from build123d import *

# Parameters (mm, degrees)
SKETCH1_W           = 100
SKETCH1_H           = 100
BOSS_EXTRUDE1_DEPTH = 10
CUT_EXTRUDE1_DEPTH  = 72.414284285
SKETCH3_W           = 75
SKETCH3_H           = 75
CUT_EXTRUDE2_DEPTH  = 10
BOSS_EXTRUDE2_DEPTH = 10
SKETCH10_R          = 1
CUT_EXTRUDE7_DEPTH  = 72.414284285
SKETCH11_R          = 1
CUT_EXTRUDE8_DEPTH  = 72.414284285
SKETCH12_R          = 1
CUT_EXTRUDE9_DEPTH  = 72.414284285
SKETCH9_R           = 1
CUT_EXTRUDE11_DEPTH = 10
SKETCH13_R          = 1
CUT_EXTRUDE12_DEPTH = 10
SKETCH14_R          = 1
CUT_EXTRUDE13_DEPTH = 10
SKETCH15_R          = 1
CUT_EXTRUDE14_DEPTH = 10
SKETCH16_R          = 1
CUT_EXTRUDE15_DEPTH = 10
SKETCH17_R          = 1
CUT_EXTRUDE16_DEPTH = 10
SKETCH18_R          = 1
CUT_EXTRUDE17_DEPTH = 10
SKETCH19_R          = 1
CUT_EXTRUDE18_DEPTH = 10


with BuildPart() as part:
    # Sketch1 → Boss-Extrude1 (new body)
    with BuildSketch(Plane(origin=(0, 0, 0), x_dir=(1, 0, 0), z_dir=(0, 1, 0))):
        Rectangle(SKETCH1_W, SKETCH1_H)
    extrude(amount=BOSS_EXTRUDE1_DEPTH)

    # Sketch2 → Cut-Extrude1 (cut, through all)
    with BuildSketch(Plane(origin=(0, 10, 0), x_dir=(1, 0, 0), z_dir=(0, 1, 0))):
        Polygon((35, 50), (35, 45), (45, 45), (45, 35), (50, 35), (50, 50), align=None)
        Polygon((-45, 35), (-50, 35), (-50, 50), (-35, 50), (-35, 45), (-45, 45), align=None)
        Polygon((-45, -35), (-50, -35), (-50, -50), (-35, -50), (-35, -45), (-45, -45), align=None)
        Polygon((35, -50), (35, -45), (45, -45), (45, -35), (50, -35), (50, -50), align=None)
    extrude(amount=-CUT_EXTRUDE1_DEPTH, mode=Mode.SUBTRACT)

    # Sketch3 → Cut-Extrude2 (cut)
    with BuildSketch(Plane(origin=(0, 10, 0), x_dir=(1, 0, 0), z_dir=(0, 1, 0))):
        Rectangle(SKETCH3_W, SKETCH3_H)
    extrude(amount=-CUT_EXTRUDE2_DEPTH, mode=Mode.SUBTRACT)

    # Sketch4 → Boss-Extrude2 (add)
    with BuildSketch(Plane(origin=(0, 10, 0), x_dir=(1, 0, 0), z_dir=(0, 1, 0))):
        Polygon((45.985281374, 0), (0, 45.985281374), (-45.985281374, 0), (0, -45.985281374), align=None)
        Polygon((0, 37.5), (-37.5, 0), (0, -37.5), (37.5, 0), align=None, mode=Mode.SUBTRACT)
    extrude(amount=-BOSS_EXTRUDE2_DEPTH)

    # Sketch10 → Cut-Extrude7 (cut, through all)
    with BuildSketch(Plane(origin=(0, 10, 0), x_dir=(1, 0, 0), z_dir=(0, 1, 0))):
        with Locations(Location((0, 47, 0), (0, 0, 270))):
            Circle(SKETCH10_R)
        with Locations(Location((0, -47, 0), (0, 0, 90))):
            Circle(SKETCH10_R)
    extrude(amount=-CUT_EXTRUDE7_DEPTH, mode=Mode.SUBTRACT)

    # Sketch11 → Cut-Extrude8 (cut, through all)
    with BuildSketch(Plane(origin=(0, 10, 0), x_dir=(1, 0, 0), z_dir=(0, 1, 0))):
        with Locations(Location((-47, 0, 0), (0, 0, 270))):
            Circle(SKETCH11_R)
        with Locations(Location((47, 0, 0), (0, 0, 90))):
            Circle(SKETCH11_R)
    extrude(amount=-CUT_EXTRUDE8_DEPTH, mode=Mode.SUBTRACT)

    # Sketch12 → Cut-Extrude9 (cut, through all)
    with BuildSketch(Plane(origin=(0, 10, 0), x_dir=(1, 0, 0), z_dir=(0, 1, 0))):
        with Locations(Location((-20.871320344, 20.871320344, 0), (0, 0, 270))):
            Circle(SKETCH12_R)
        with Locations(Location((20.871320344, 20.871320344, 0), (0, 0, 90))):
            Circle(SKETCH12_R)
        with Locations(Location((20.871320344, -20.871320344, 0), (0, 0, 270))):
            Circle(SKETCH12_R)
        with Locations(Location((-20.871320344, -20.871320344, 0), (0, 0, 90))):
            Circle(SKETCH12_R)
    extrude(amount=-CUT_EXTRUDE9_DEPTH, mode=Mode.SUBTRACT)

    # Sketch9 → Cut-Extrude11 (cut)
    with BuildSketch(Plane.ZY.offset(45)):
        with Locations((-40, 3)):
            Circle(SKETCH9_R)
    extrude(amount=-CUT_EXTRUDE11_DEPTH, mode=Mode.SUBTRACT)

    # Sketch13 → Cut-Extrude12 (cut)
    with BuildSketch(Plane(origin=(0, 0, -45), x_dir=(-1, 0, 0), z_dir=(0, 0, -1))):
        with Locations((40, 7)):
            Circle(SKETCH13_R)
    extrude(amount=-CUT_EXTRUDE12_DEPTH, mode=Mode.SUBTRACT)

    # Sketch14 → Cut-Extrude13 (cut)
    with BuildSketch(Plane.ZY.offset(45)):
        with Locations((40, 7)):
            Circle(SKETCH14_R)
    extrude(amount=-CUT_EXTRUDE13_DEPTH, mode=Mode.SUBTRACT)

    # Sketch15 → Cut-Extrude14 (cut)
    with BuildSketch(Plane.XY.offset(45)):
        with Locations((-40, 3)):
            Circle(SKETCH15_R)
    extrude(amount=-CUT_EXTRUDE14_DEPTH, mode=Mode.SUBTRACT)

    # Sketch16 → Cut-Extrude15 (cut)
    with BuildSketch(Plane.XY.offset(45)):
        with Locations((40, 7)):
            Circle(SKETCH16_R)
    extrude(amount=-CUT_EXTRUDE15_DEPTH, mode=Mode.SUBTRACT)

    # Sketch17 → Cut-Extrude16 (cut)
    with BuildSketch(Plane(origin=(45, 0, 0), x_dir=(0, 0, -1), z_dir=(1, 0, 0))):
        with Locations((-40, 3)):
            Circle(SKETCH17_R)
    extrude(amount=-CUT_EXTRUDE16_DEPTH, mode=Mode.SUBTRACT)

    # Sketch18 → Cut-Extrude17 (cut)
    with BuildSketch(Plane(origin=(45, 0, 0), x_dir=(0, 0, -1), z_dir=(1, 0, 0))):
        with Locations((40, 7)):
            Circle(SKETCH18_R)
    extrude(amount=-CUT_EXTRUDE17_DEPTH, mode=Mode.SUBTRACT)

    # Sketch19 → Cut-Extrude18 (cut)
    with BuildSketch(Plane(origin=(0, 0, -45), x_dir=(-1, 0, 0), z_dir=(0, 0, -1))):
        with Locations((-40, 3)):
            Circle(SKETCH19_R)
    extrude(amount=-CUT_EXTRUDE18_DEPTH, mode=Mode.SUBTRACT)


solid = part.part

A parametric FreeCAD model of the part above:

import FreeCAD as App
import Part
import Sketcher

doc = App.newDocument("Part")
params = doc.addObject("Spreadsheet::Sheet", "Params")
for row, (alias, value) in enumerate([
    ("sketch1_width", "100 mm"),
    ("pad1_length", "10 mm"),
    ("sketch2_width", "10 mm"),
    ("sketch2_width2", "5 mm"),
    ("sketch3_width", "75 mm"),
    ("pocket2_length", "10 mm"),
    ("pad2_length", "10 mm"),
    ("sketch5_diameter", "2 mm"),
    ("sketch6_diameter", "2 mm"),
    ("sketch7_diameter", "2 mm"),
    ("sketch8_diameter", "2 mm"),
    ("pocket6_length", "10 mm"),
    ("sketch9_diameter", "2 mm"),
    ("pocket7_length", "10 mm"),
    ("sketch10_diameter", "2 mm"),
    ("pocket8_length", "10 mm"),
    ("sketch11_diameter", "2 mm"),
    ("pocket9_length", "10 mm"),
    ("sketch12_diameter", "2 mm"),
    ("pocket10_length", "10 mm"),
    ("sketch13_diameter", "2 mm"),
    ("pocket11_length", "10 mm"),
    ("sketch14_diameter", "2 mm"),
    ("pocket12_length", "10 mm"),
    ("sketch15_diameter", "2 mm"),
    ("pocket13_length", "10 mm"),
], start=1):
    params.set(f"A{row}", alias)
    params.set(f"B{row}", "=" + value)
    params.setAlias(f"B{row}", alias)

body = doc.addObject("PartDesign::Body", "Body")

sketch1 = body.newObject("Sketcher::SketchObject", "Sketch")
sketch1.AttachmentSupport = (doc.getObject("XZ_Plane"), [""])
sketch1.MapMode = "FlatFace"
sketch1.addGeometry([
    Part.LineSegment(App.Vector(-50, -50, 0), App.Vector(-50, 50, 0)),
    Part.LineSegment(App.Vector(-50, 50, 0), App.Vector(50, 50, 0)),
    Part.LineSegment(App.Vector(50, 50, 0), App.Vector(50, -50, 0)),
    Part.LineSegment(App.Vector(50, -50, 0), App.Vector(-50, -50, 0)),
], False)
sketch1.addConstraint([
    Sketcher.Constraint("Coincident", 0, 2, 1, 1),
    Sketcher.Constraint("Coincident", 1, 2, 2, 1),
    Sketcher.Constraint("Coincident", 2, 2, 3, 1),
    Sketcher.Constraint("Coincident", 3, 2, 0, 1),
    Sketcher.Constraint("Vertical", 0),
    Sketcher.Constraint("Horizontal", 1),
    Sketcher.Constraint("Vertical", 2),
    Sketcher.Constraint("Horizontal", 3),
    Sketcher.Constraint("Symmetric", 0, 2, 2, 2, -1, 1),
    Sketcher.Constraint("Equal", 3, 0),
    Sketcher.Constraint("DistanceX", 1, 1, 1, 2, 100.0),
])
sketch1.setExpression("Constraints[10]", "Params.sketch1_width")
pad1 = body.newObject("PartDesign::Pad", "Pad")
pad1.Profile = sketch1
pad1.setExpression("Length", "Params.pad1_length")
pad1.Reversed = True

sketch2 = body.newObject("Sketcher::SketchObject", "Sketch001")
sketch2.AttachmentSupport = (doc.getObject("XZ_Plane"), [""])
sketch2.MapMode = "FlatFace"
sketch2.AttachmentOffset = App.Placement(App.Vector(0, 0, -10), App.Rotation())
sketch2.addGeometry([
    Part.LineSegment(App.Vector(35, -50, 0), App.Vector(35, -45, 0)),
    Part.LineSegment(App.Vector(35, -45, 0), App.Vector(45, -45, 0)),
    Part.LineSegment(App.Vector(45, -45, 0), App.Vector(45, -35, 0)),
    Part.LineSegment(App.Vector(45, -35, 0), App.Vector(50, -35, 0)),
    Part.LineSegment(App.Vector(50, -35, 0), App.Vector(50, -50, 0)),
    Part.LineSegment(App.Vector(50, -50, 0), App.Vector(35, -50, 0)),
    Part.LineSegment(App.Vector(-50, -35, 0), App.Vector(-45, -35, 0)),
    Part.LineSegment(App.Vector(-45, -35, 0), App.Vector(-45, -45, 0)),
    Part.LineSegment(App.Vector(-45, -45, 0), App.Vector(-35, -45, 0)),
    Part.LineSegment(App.Vector(-35, -45, 0), App.Vector(-35, -50, 0)),
    Part.LineSegment(App.Vector(-35, -50, 0), App.Vector(-50, -50, 0)),
    Part.LineSegment(App.Vector(-50, -50, 0), App.Vector(-50, -35, 0)),
    Part.LineSegment(App.Vector(-45, 35, 0), App.Vector(-50, 35, 0)),
    Part.LineSegment(App.Vector(-50, 35, 0), App.Vector(-50, 50, 0)),
    Part.LineSegment(App.Vector(-50, 50, 0), App.Vector(-35, 50, 0)),
    Part.LineSegment(App.Vector(-35, 50, 0), App.Vector(-35, 45, 0)),
    Part.LineSegment(App.Vector(-35, 45, 0), App.Vector(-45, 45, 0)),
    Part.LineSegment(App.Vector(-45, 45, 0), App.Vector(-45, 35, 0)),
    Part.LineSegment(App.Vector(35, 45, 0), App.Vector(35, 50, 0)),
    Part.LineSegment(App.Vector(35, 50, 0), App.Vector(50, 50, 0)),
    Part.LineSegment(App.Vector(50, 50, 0), App.Vector(50, 35, 0)),
    Part.LineSegment(App.Vector(50, 35, 0), App.Vector(45, 35, 0)),
    Part.LineSegment(App.Vector(45, 35, 0), App.Vector(45, 45, 0)),
    Part.LineSegment(App.Vector(45, 45, 0), App.Vector(35, 45, 0)),
], False)
sketch2.addConstraint([
    Sketcher.Constraint("Coincident", 0, 2, 1, 1),
    Sketcher.Constraint("Coincident", 1, 2, 2, 1),
    Sketcher.Constraint("Coincident", 2, 2, 3, 1),
    Sketcher.Constraint("Coincident", 3, 2, 4, 1),
    Sketcher.Constraint("Coincident", 4, 2, 5, 1),
    Sketcher.Constraint("Coincident", 5, 2, 0, 1),
    Sketcher.Constraint("Coincident", 6, 2, 7, 1),
    Sketcher.Constraint("Coincident", 7, 2, 8, 1),
    Sketcher.Constraint("Coincident", 8, 2, 9, 1),
    Sketcher.Constraint("Coincident", 9, 2, 10, 1),
    Sketcher.Constraint("Coincident", 10, 2, 11, 1),
    Sketcher.Constraint("Coincident", 11, 2, 6, 1),
    Sketcher.Constraint("Coincident", 12, 2, 13, 1),
    Sketcher.Constraint("Coincident", 13, 2, 14, 1),
    Sketcher.Constraint("Coincident", 14, 2, 15, 1),
    Sketcher.Constraint("Coincident", 15, 2, 16, 1),
    Sketcher.Constraint("Coincident", 16, 2, 17, 1),
    Sketcher.Constraint("Coincident", 17, 2, 12, 1),
    Sketcher.Constraint("Coincident", 18, 2, 19, 1),
    Sketcher.Constraint("Coincident", 19, 2, 20, 1),
    Sketcher.Constraint("Coincident", 20, 2, 21, 1),
    Sketcher.Constraint("Coincident", 21, 2, 22, 1),
    Sketcher.Constraint("Coincident", 22, 2, 23, 1),
    Sketcher.Constraint("Coincident", 23, 2, 18, 1),
    Sketcher.Constraint("Vertical", 0),
    Sketcher.Constraint("Horizontal", 1),
    Sketcher.Constraint("Vertical", 2),
    Sketcher.Constraint("Horizontal", 3),
    Sketcher.Constraint("Vertical", 4),
    Sketcher.Constraint("Horizontal", 5),
    Sketcher.Constraint("Horizontal", 6),
    Sketcher.Constraint("Vertical", 7),
    Sketcher.Constraint("Horizontal", 8),
    Sketcher.Constraint("Vertical", 9),
    Sketcher.Constraint("Horizontal", 10),
    Sketcher.Constraint("Vertical", 11),
    Sketcher.Constraint("Horizontal", 12),
    Sketcher.Constraint("Vertical", 13),
    Sketcher.Constraint("Horizontal", 14),
    Sketcher.Constraint("Vertical", 15),
    Sketcher.Constraint("Horizontal", 16),
    Sketcher.Constraint("Vertical", 17),
    Sketcher.Constraint("Vertical", 18),
    Sketcher.Constraint("Horizontal", 19),
    Sketcher.Constraint("Vertical", 20),
    Sketcher.Constraint("Horizontal", 21),
    Sketcher.Constraint("Vertical", 22),
    Sketcher.Constraint("Horizontal", 23),
    Sketcher.Constraint("Symmetric", 3, 2, 12, 2, -1, 1),
    Sketcher.Constraint("Symmetric", 5, 2, 14, 2, -1, 1),
    Sketcher.Constraint("Symmetric", 1, 2, 16, 2, -1, 1),
    Sketcher.Constraint("Symmetric", 9, 2, 18, 2, -1, 1),
    Sketcher.Constraint("Symmetric", 11, 2, 20, 2, -1, 1),
    Sketcher.Constraint("Symmetric", 7, 2, 22, 2, -1, 1),
    Sketcher.Constraint("Symmetric", 2, 2, 6, 2, -2),
    Sketcher.Constraint("Symmetric", 0, 2, 8, 2, -2),
    Sketcher.Constraint("Symmetric", 4, 2, 10, 2, -2),
    Sketcher.Constraint("Equal", 21, 0),
    Sketcher.Constraint("Equal", 23, 2),
    Sketcher.Constraint("DistanceX", 1, 1, 1, 2, 10.0),
    Sketcher.Constraint("DistanceX", 3, 1, 3, 2, 5.0),
    Sketcher.Constraint("DistanceX", -1, 1, 0, 2, 35.0),
    Sketcher.Constraint("DistanceY", 0, 2, -1, 1, 45.0),
])
sketch2.setExpression("Constraints[59]", "Params.sketch2_width")
sketch2.setExpression("Constraints[60]", "Params.sketch2_width2")
pocket1 = body.newObject("PartDesign::Pocket", "Pocket")
pocket1.Profile = sketch2
pocket1.Type = "ThroughAll"
pocket1.Reversed = True

sketch3 = body.newObject("Sketcher::SketchObject", "Sketch002")
sketch3.AttachmentSupport = (doc.getObject("XZ_Plane"), [""])
sketch3.MapMode = "FlatFace"
sketch3.AttachmentOffset = App.Placement(App.Vector(0, 0, -10), App.Rotation())
sketch3.addGeometry([
    Part.LineSegment(App.Vector(-38, -38, 0), App.Vector(-38, 38, 0)),
    Part.LineSegment(App.Vector(-38, 38, 0), App.Vector(38, 38, 0)),
    Part.LineSegment(App.Vector(38, 38, 0), App.Vector(38, -38, 0)),
    Part.LineSegment(App.Vector(38, -38, 0), App.Vector(-38, -38, 0)),
], False)
sketch3.addConstraint([
    Sketcher.Constraint("Coincident", 0, 2, 1, 1),
    Sketcher.Constraint("Coincident", 1, 2, 2, 1),
    Sketcher.Constraint("Coincident", 2, 2, 3, 1),
    Sketcher.Constraint("Coincident", 3, 2, 0, 1),
    Sketcher.Constraint("Vertical", 0),
    Sketcher.Constraint("Horizontal", 1),
    Sketcher.Constraint("Vertical", 2),
    Sketcher.Constraint("Horizontal", 3),
    Sketcher.Constraint("Symmetric", 0, 2, 2, 2, -1, 1),
    Sketcher.Constraint("Equal", 3, 0),
    Sketcher.Constraint("DistanceX", 1, 1, 1, 2, 75.0),
])
sketch3.setExpression("Constraints[10]", "Params.sketch3_width")
pocket2 = body.newObject("PartDesign::Pocket", "Pocket001")
pocket2.Profile = sketch3
pocket2.setExpression("Length", "Params.pocket2_length")
pocket2.Reversed = True

sketch4 = body.newObject("Sketcher::SketchObject", "Sketch003")
sketch4.AttachmentSupport = (doc.getObject("XZ_Plane"), [""])
sketch4.MapMode = "FlatFace"
sketch4.AttachmentOffset = App.Placement(App.Vector(0, 0, -10), App.Rotation())
sketch4.addGeometry([
    Part.LineSegment(App.Vector(46, 0, 0), App.Vector(0, -46, 0)),
    Part.LineSegment(App.Vector(0, -46, 0), App.Vector(-46, 0, 0)),
    Part.LineSegment(App.Vector(-46, 0, 0), App.Vector(0, 46, 0)),
    Part.LineSegment(App.Vector(0, 46, 0), App.Vector(46, 0, 0)),
    Part.LineSegment(App.Vector(-38, 0, 0), App.Vector(0, -38, 0)),
    Part.LineSegment(App.Vector(0, -38, 0), App.Vector(38, 0, 0)),
    Part.LineSegment(App.Vector(38, 0, 0), App.Vector(0, 38, 0)),
    Part.LineSegment(App.Vector(0, 38, 0), App.Vector(-38, 0, 0)),
], False)
sketch4.addConstraint([
    Sketcher.Constraint("Coincident", 0, 2, 1, 1),
    Sketcher.Constraint("Coincident", 1, 2, 2, 1),
    Sketcher.Constraint("Coincident", 2, 2, 3, 1),
    Sketcher.Constraint("Coincident", 3, 2, 0, 1),
    Sketcher.Constraint("Coincident", 4, 2, 5, 1),
    Sketcher.Constraint("Coincident", 5, 2, 6, 1),
    Sketcher.Constraint("Coincident", 6, 2, 7, 1),
    Sketcher.Constraint("Coincident", 7, 2, 4, 1),
    Sketcher.Constraint("Symmetric", 0, 2, 2, 2, -1, 1),
    Sketcher.Constraint("Symmetric", 1, 2, 3, 2, -1, 1),
    Sketcher.Constraint("Symmetric", 4, 2, 6, 2, -1, 1),
    Sketcher.Constraint("Symmetric", 5, 2, 7, 2, -1, 1),
    Sketcher.Constraint("PointOnObject", 0, 2, -2),
    Sketcher.Constraint("PointOnObject", 1, 2, -1),
    Sketcher.Constraint("PointOnObject", 4, 2, -2),
    Sketcher.Constraint("PointOnObject", 5, 2, -1),
    Sketcher.Constraint("Perpendicular", 0, 1),
    Sketcher.Constraint("Parallel", 3, 4),
    Sketcher.Constraint("DistanceY", 4, 2, 6, 2, 75.0),
    Sketcher.Constraint("Distance", 0, 65.033009),
])
pad2 = body.newObject("PartDesign::Pad", "Pad001")
pad2.Profile = sketch4
pad2.setExpression("Length", "Params.pad2_length")

sketch5 = body.newObject("Sketcher::SketchObject", "Sketch004")
sketch5.AttachmentSupport = (doc.getObject("XZ_Plane"), [""])
sketch5.MapMode = "FlatFace"
sketch5.AttachmentOffset = App.Placement(App.Vector(0, 0, -10), App.Rotation())
sketch5.addGeometry([
    Part.Circle(App.Vector(0, -47, 0), App.Vector(0, 0, 1), 1),
    Part.Circle(App.Vector(0, 47, 0), App.Vector(0, 0, 1), 1),
], False)
sketch5.addConstraint([
    Sketcher.Constraint("Equal", 0, 1),
    Sketcher.Constraint("Symmetric", 0, 3, 1, 3, -1, 1),
    Sketcher.Constraint("PointOnObject", 0, 3, -2),
    Sketcher.Constraint("Diameter", 0, 2.0),
    Sketcher.Constraint("DistanceY", 0, 3, -1, 1, 47.0),
])
sketch5.setExpression("Constraints[3]", "Params.sketch5_diameter")
pocket3 = body.newObject("PartDesign::Pocket", "Pocket002")
pocket3.Profile = sketch5
pocket3.Type = "ThroughAll"
pocket3.Reversed = True

sketch6 = body.newObject("Sketcher::SketchObject", "Sketch005")
sketch6.AttachmentSupport = (doc.getObject("XZ_Plane"), [""])
sketch6.MapMode = "FlatFace"
sketch6.AttachmentOffset = App.Placement(App.Vector(0, 0, -10), App.Rotation())
sketch6.addGeometry([
    Part.Circle(App.Vector(-47, 0, 0), App.Vector(0, 0, 1), 1),
    Part.Circle(App.Vector(47, 0, 0), App.Vector(0, 0, 1), 1),
], False)
sketch6.addConstraint([
    Sketcher.Constraint("Equal", 0, 1),
    Sketcher.Constraint("Symmetric", 0, 3, 1, 3, -1, 1),
    Sketcher.Constraint("PointOnObject", 0, 3, -1),
    Sketcher.Constraint("Diameter", 0, 2.0),
    Sketcher.Constraint("DistanceX", 0, 3, -1, 1, 47.0),
])
sketch6.setExpression("Constraints[3]", "Params.sketch6_diameter")
pocket4 = body.newObject("PartDesign::Pocket", "Pocket003")
pocket4.Profile = sketch6
pocket4.Type = "ThroughAll"
pocket4.Reversed = True

sketch7 = body.newObject("Sketcher::SketchObject", "Sketch006")
sketch7.AttachmentSupport = (doc.getObject("XZ_Plane"), [""])
sketch7.MapMode = "FlatFace"
sketch7.AttachmentOffset = App.Placement(App.Vector(0, 0, -10), App.Rotation())
sketch7.addGeometry([
    Part.Circle(App.Vector(-20.9, -20.9, 0), App.Vector(0, 0, 1), 1),
    Part.Circle(App.Vector(20.9, -20.9, 0), App.Vector(0, 0, 1), 1),
    Part.Circle(App.Vector(20.9, 20.9, 0), App.Vector(0, 0, 1), 1),
    Part.Circle(App.Vector(-20.9, 20.9, 0), App.Vector(0, 0, 1), 1),
], False)
sketch7.addConstraint([
    Sketcher.Constraint("Equal", 0, 1),
    Sketcher.Constraint("Equal", 1, 2),
    Sketcher.Constraint("Equal", 2, 3),
    Sketcher.Constraint("Symmetric", 0, 3, 2, 3, -1, 1),
    Sketcher.Constraint("Symmetric", 1, 3, 3, 3, -1, 1),
    Sketcher.Constraint("Symmetric", 0, 3, 1, 3, -2),
    Sketcher.Constraint("Diameter", 0, 2.0),
    Sketcher.Constraint("DistanceX", 0, 3, -1, 1, 20.87132),
    Sketcher.Constraint("DistanceY", 0, 3, -1, 1, 20.87132),
])
sketch7.setExpression("Constraints[6]", "Params.sketch7_diameter")
pocket5 = body.newObject("PartDesign::Pocket", "Pocket004")
pocket5.Profile = sketch7
pocket5.Type = "ThroughAll"
pocket5.Reversed = True

sketch8 = body.newObject("Sketcher::SketchObject", "Sketch007")
sketch8.AttachmentSupport = (doc.getObject("YZ_Plane"), [""])
sketch8.MapMode = "FlatFace"
sketch8.AttachmentOffset = App.Placement(App.Vector(0, 0, -45), App.Rotation())
sketch8.addGeometry(Part.Circle(App.Vector(3, -40, 0), App.Vector(0, 0, 1), 1), False)
sketch8.addConstraint([
    Sketcher.Constraint("Diameter", 0, 2.0),
    Sketcher.Constraint("DistanceX", -1, 1, 0, 3, 3.0),
    Sketcher.Constraint("DistanceY", 0, 3, -1, 1, 40.0),
])
sketch8.setExpression("Constraints[0]", "Params.sketch8_diameter")
pocket6 = body.newObject("PartDesign::Pocket", "Pocket005")
pocket6.Profile = sketch8
pocket6.setExpression("Length", "Params.pocket6_length")
pocket6.Reversed = True

sketch9 = body.newObject("Sketcher::SketchObject", "Sketch008")
sketch9.AttachmentSupport = (doc.getObject("XY_Plane"), [""])
sketch9.MapMode = "FlatFace"
sketch9.AttachmentOffset = App.Placement(App.Vector(0, 0, -45), App.Rotation())
sketch9.addGeometry(Part.Circle(App.Vector(-40, 7, 0), App.Vector(0, 0, 1), 1), False)
sketch9.addConstraint([
    Sketcher.Constraint("Diameter", 0, 2.0),
    Sketcher.Constraint("DistanceX", 0, 3, -1, 1, 40.0),
    Sketcher.Constraint("DistanceY", -1, 1, 0, 3, 7.0),
])
sketch9.setExpression("Constraints[0]", "Params.sketch9_diameter")
pocket7 = body.newObject("PartDesign::Pocket", "Pocket006")
pocket7.Profile = sketch9
pocket7.setExpression("Length", "Params.pocket7_length")
pocket7.Reversed = True

sketch10 = body.newObject("Sketcher::SketchObject", "Sketch009")
sketch10.AttachmentSupport = (doc.getObject("YZ_Plane"), [""])
sketch10.MapMode = "FlatFace"
sketch10.AttachmentOffset = App.Placement(App.Vector(0, 0, -45), App.Rotation())
sketch10.addGeometry(Part.Circle(App.Vector(7, 40, 0), App.Vector(0, 0, 1), 1), False)
sketch10.addConstraint([
    Sketcher.Constraint("Diameter", 0, 2.0),
    Sketcher.Constraint("DistanceX", -1, 1, 0, 3, 7.0),
    Sketcher.Constraint("DistanceY", -1, 1, 0, 3, 40.0),
])
sketch10.setExpression("Constraints[0]", "Params.sketch10_diameter")
pocket8 = body.newObject("PartDesign::Pocket", "Pocket007")
pocket8.Profile = sketch10
pocket8.setExpression("Length", "Params.pocket8_length")
pocket8.Reversed = True

sketch11 = body.newObject("Sketcher::SketchObject", "Sketch010")
sketch11.AttachmentSupport = (doc.getObject("XY_Plane"), [""])
sketch11.MapMode = "FlatFace"
sketch11.AttachmentOffset = App.Placement(App.Vector(0, 0, 45), App.Rotation())
sketch11.addGeometry(Part.Circle(App.Vector(-40, 3, 0), App.Vector(0, 0, 1), 1), False)
sketch11.addConstraint([
    Sketcher.Constraint("Diameter", 0, 2.0),
    Sketcher.Constraint("DistanceX", 0, 3, -1, 1, 40.0),
    Sketcher.Constraint("DistanceY", -1, 1, 0, 3, 3.0),
])
sketch11.setExpression("Constraints[0]", "Params.sketch11_diameter")
pocket9 = body.newObject("PartDesign::Pocket", "Pocket008")
pocket9.Profile = sketch11
pocket9.setExpression("Length", "Params.pocket9_length")

sketch12 = body.newObject("Sketcher::SketchObject", "Sketch011")
sketch12.AttachmentSupport = (doc.getObject("XY_Plane"), [""])
sketch12.MapMode = "FlatFace"
sketch12.AttachmentOffset = App.Placement(App.Vector(0, 0, 45), App.Rotation())
sketch12.addGeometry(Part.Circle(App.Vector(40, 7, 0), App.Vector(0, 0, 1), 1), False)
sketch12.addConstraint([
    Sketcher.Constraint("Diameter", 0, 2.0),
    Sketcher.Constraint("DistanceX", -1, 1, 0, 3, 40.0),
    Sketcher.Constraint("DistanceY", -1, 1, 0, 3, 7.0),
])
sketch12.setExpression("Constraints[0]", "Params.sketch12_diameter")
pocket10 = body.newObject("PartDesign::Pocket", "Pocket009")
pocket10.Profile = sketch12
pocket10.setExpression("Length", "Params.pocket10_length")

sketch13 = body.newObject("Sketcher::SketchObject", "Sketch012")
sketch13.AttachmentSupport = (doc.getObject("YZ_Plane"), [""])
sketch13.MapMode = "FlatFace"
sketch13.AttachmentOffset = App.Placement(App.Vector(0, 0, 45), App.Rotation())
sketch13.addGeometry(Part.Circle(App.Vector(3, 40, 0), App.Vector(0, 0, 1), 1), False)
sketch13.addConstraint([
    Sketcher.Constraint("Diameter", 0, 2.0),
    Sketcher.Constraint("DistanceX", -1, 1, 0, 3, 3.0),
    Sketcher.Constraint("DistanceY", -1, 1, 0, 3, 40.0),
])
sketch13.setExpression("Constraints[0]", "Params.sketch13_diameter")
pocket11 = body.newObject("PartDesign::Pocket", "Pocket010")
pocket11.Profile = sketch13
pocket11.setExpression("Length", "Params.pocket11_length")

sketch14 = body.newObject("Sketcher::SketchObject", "Sketch013")
sketch14.AttachmentSupport = (doc.getObject("YZ_Plane"), [""])
sketch14.MapMode = "FlatFace"
sketch14.AttachmentOffset = App.Placement(App.Vector(0, 0, 45), App.Rotation())
sketch14.addGeometry(Part.Circle(App.Vector(7, -40, 0), App.Vector(0, 0, 1), 1), False)
sketch14.addConstraint([
    Sketcher.Constraint("Diameter", 0, 2.0),
    Sketcher.Constraint("DistanceX", -1, 1, 0, 3, 7.0),
    Sketcher.Constraint("DistanceY", 0, 3, -1, 1, 40.0),
])
sketch14.setExpression("Constraints[0]", "Params.sketch14_diameter")
pocket12 = body.newObject("PartDesign::Pocket", "Pocket011")
pocket12.Profile = sketch14
pocket12.setExpression("Length", "Params.pocket12_length")

sketch15 = body.newObject("Sketcher::SketchObject", "Sketch014")
sketch15.AttachmentSupport = (doc.getObject("XY_Plane"), [""])
sketch15.MapMode = "FlatFace"
sketch15.AttachmentOffset = App.Placement(App.Vector(0, 0, -45), App.Rotation())
sketch15.addGeometry(Part.Circle(App.Vector(40, 3, 0), App.Vector(0, 0, 1), 1), False)
sketch15.addConstraint([
    Sketcher.Constraint("Diameter", 0, 2.0),
    Sketcher.Constraint("DistanceX", -1, 1, 0, 3, 40.0),
    Sketcher.Constraint("DistanceY", -1, 1, 0, 3, 3.0),
])
sketch15.setExpression("Constraints[0]", "Params.sketch15_diameter")
pocket13 = body.newObject("PartDesign::Pocket", "Pocket012")
pocket13.Profile = sketch15
pocket13.setExpression("Length", "Params.pocket13_length")
pocket13.Reversed = True

doc.recompute()
